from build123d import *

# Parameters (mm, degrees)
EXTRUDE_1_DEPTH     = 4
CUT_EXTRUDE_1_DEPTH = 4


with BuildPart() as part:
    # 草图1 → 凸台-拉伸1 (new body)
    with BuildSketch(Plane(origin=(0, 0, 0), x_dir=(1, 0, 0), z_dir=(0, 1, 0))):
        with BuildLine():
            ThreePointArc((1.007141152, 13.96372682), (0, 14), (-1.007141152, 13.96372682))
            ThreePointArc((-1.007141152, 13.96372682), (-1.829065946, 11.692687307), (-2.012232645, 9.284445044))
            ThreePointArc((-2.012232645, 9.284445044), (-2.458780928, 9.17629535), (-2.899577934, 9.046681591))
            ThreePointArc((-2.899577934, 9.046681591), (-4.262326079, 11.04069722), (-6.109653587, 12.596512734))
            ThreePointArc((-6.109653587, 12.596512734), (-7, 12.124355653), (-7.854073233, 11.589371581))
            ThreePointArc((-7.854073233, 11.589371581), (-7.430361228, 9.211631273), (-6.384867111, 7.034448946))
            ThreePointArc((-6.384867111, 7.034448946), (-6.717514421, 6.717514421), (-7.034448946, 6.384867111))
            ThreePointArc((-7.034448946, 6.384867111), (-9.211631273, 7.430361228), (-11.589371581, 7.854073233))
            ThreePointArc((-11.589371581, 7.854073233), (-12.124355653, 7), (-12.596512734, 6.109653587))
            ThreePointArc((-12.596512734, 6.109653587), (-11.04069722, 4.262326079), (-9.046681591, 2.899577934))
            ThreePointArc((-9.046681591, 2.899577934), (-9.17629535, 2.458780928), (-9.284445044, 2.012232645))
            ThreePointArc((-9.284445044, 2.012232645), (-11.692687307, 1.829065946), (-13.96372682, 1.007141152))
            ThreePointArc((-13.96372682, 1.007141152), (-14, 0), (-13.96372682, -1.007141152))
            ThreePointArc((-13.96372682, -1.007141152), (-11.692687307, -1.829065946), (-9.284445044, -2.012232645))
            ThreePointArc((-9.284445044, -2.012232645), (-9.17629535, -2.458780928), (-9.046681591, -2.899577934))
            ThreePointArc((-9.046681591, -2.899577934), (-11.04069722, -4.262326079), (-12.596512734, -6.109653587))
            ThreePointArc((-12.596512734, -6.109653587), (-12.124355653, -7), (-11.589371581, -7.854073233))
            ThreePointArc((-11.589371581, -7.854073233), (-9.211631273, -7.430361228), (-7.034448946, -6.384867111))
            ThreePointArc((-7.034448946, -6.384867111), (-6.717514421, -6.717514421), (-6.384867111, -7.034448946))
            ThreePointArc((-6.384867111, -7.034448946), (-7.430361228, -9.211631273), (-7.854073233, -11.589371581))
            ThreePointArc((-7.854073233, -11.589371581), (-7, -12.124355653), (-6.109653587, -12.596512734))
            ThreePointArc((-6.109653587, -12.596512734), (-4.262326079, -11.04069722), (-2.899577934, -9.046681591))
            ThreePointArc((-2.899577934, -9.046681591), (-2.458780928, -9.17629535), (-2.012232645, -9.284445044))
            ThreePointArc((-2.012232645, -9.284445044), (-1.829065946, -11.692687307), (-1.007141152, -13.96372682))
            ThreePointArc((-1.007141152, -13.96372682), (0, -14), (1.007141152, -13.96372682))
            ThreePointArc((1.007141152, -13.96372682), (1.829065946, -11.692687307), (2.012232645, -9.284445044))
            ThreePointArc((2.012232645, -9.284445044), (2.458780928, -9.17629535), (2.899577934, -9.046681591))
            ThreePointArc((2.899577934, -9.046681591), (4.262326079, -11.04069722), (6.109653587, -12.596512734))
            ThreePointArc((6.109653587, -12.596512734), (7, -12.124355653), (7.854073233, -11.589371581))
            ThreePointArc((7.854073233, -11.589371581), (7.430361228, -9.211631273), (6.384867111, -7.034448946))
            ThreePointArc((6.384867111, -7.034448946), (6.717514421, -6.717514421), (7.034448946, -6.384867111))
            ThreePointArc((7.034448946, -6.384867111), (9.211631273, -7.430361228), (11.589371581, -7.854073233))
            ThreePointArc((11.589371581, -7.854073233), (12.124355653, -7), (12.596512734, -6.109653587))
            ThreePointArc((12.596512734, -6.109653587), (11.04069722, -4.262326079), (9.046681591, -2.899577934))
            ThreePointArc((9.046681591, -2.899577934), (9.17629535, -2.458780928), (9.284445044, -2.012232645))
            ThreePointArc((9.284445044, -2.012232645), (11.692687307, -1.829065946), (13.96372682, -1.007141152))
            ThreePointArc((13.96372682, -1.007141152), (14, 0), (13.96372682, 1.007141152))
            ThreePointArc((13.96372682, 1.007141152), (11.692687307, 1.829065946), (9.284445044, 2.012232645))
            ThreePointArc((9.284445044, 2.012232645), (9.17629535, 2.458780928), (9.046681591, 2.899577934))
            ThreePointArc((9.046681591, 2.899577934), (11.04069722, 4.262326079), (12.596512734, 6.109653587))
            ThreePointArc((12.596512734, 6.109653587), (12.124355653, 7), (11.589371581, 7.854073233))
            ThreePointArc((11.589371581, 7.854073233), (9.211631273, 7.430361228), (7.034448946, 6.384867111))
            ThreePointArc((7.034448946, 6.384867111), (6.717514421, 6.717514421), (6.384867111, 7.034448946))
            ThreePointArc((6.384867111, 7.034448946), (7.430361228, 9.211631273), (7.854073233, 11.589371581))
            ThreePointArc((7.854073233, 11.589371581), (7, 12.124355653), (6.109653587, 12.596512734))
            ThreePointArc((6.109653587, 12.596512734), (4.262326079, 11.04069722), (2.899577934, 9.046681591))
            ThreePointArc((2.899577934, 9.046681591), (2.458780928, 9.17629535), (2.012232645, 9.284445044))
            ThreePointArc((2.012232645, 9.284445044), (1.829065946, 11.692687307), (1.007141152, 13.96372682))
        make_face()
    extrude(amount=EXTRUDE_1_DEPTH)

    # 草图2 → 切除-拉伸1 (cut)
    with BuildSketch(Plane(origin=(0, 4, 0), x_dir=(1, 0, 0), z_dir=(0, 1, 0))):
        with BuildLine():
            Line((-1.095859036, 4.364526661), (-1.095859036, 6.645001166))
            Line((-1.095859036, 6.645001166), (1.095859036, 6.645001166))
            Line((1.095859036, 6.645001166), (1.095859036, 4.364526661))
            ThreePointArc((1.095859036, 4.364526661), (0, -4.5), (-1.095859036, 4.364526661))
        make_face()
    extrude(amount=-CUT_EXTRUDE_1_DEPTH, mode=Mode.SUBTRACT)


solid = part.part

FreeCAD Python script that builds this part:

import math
import FreeCAD as App
import Part
import Sketcher

V = App.Vector

doc = App.newDocument("Part")
body = doc.addObject("PartDesign::Body", "Body")

sketch1 = doc.addObject("Sketcher::SketchObject", "Sketch")
body.addObject(sketch1)
sketch1.AttachmentSupport = (doc.XZ_Plane, [""])
sketch1.MapMode = "FlatFace"
sketch1.addGeometry([
    Part.ArcOfCircle(Part.Circle(V(0, 0, 0), V(0, 0, 1), 14), math.radians(-94.13), math.radians(-85.87)),
    Part.ArcOfCircle(Part.Circle(V(6.9, -9.8, 0), V(0, 0, 1), 8.9), math.radians(177), math.radians(208)),
    Part.ArcOfCircle(Part.Circle(V(0, 0, 0), V(0, 0, 1), 9.5), math.radians(-107.77), math.radians(-102.23)),
    Part.ArcOfCircle(Part.Circle(V(-10.9, -5.1, 0), V(0, 0, 1), 8.9), math.radians(-58), math.radians(-27)),
    Part.ArcOfCircle(Part.Circle(V(0, 0, 0), V(0, 0, 1), 14), math.radians(-124.13), math.radians(-115.87)),
    Part.ArcOfCircle(Part.Circle(V(1.1, -12, 0), V(0, 0, 1), 8.9), math.radians(147), math.radians(178)),
    Part.ArcOfCircle(Part.Circle(V(0, 0, 0), V(0, 0, 1), 9.5), math.radians(-137.77), math.radians(-132.23)),
    Part.ArcOfCircle(Part.Circle(V(-12, 1.1, 0), V(0, 0, 1), 8.9), math.radians(-88), math.radians(-57)),
    Part.ArcOfCircle(Part.Circle(V(0, 0, 0), V(0, 0, 1), 14), math.radians(-154.13), math.radians(-145.87)),
    Part.ArcOfCircle(Part.Circle(V(-5.1, -10.9, 0), V(0, 0, 1), 8.9), math.radians(117), math.radians(148)),
    Part.ArcOfCircle(Part.Circle(V(0, 0, 0), V(0, 0, 1), 9.5), math.radians(-167.77), math.radians(-162.23)),
    Part.ArcOfCircle(Part.Circle(V(-9.8, 6.9, 0), V(0, 0, 1), 8.9), math.radians(-118), math.radians(-87)),
    Part.ArcOfCircle(Part.Circle(V(0, 0, 0), V(0, 0, 1), 14), math.radians(175.87), math.radians(184.13)),
    Part.ArcOfCircle(Part.Circle(V(-9.8, -6.9, 0), V(0, 0, 1), 8.9), math.radians(87), math.radians(118)),
    Part.ArcOfCircle(Part.Circle(V(0, 0, 0), V(0, 0, 1), 9.5), math.radians(162.23), math.radians(167.77)),
    Part.ArcOfCircle(Part.Circle(V(-5.1, 10.9, 0), V(0, 0, 1), 8.9), math.radians(-148), math.radians(-117)),
    Part.ArcOfCircle(Part.Circle(V(0, 0, 0), V(0, 0, 1), 14), math.radians(145.87), math.radians(154.13)),
    Part.ArcOfCircle(Part.Circle(V(-12, -1.1, 0), V(0, 0, 1), 8.9), math.radians(57), math.radians(88)),
    Part.ArcOfCircle(Part.Circle(V(0, 0, 0), V(0, 0, 1), 9.5), math.radians(132.23), math.radians(137.77)),
    Part.ArcOfCircle(Part.Circle(V(1.1, 12, 0), V(0, 0, 1), 8.9), math.radians(-178), math.radians(-147)),
    Part.ArcOfCircle(Part.Circle(V(0, 0, 0), V(0, 0, 1), 14), math.radians(115.87), math.radians(124.13)),
    Part.ArcOfCircle(Part.Circle(V(-10.9, 5.1, 0), V(0, 0, 1), 8.9), math.radians(27), math.radians(58)),
    Part.ArcOfCircle(Part.Circle(V(0, 0, 0), V(0, 0, 1), 9.5), math.radians(102.23), math.radians(107.77)),
    Part.ArcOfCircle(Part.Circle(V(6.9, 9.8, 0), V(0, 0, 1), 8.9), math.radians(152), math.radians(183)),
    Part.ArcOfCircle(Part.Circle(V(0, 0, 0), V(0, 0, 1), 14), math.radians(85.87), math.radians(94.13)),
    Part.ArcOfCircle(Part.Circle(V(-6.9, 9.8, 0), V(0, 0, 1), 8.9), math.radians(-3), math.radians(28)),
    Part.ArcOfCircle(Part.Circle(V(0, 0, 0), V(0, 0, 1), 9.5), math.radians(72.23), math.radians(77.77)),
    Part.ArcOfCircle(Part.Circle(V(10.9, 5.1, 0), V(0, 0, 1), 8.9), math.radians(122), math.radians(153)),
    Part.ArcOfCircle(Part.Circle(V(0, 0, 0), V(0, 0, 1), 14), math.radians(55.87), math.radians(64.13)),
    Part.ArcOfCircle(Part.Circle(V(-1.1, 12, 0), V(0, 0, 1), 8.9), math.radians(-33), math.radians(-2)),
    Part.ArcOfCircle(Part.Circle(V(0, 0, 0), V(0, 0, 1), 9.5), math.radians(42.23), math.radians(47.77)),
    Part.ArcOfCircle(Part.Circle(V(12, -1.1, 0), V(0, 0, 1), 8.9), math.radians(92), math.radians(123)),
    Part.ArcOfCircle(Part.Circle(V(0, 0, 0), V(0, 0, 1), 14), math.radians(25.87), math.radians(34.13)),
    Part.ArcOfCircle(Part.Circle(V(5.1, 10.9, 0), V(0, 0, 1), 8.9), math.radians(-63), math.radians(-32)),
    Part.ArcOfCircle(Part.Circle(V(0, 0, 0), V(0, 0, 1), 9.5), math.radians(12.23), math.radians(17.77)),
    Part.ArcOfCircle(Part.Circle(V(9.8, -6.9, 0), V(0, 0, 1), 8.9), math.radians(62), math.radians(93)),
    Part.ArcOfCircle(Part.Circle(V(0, 0, 0), V(0, 0, 1), 14), math.radians(-4.13), math.radians(4.13)),
    Part.ArcOfCircle(Part.Circle(V(9.8, 6.9, 0), V(0, 0, 1), 8.9), math.radians(-93), math.radians(-62)),
    Part.ArcOfCircle(Part.Circle(V(0, 0, 0), V(0, 0, 1), 9.5), math.radians(-17.77), math.radians(-12.23)),
    Part.ArcOfCircle(Part.Circle(V(5.1, -10.9, 0), V(0, 0, 1), 8.9), math.radians(32), math.radians(63)),
    Part.ArcOfCircle(Part.Circle(V(0, 0, 0), V(0, 0, 1), 14), math.radians(-34.13), math.radians(-25.87)),
    Part.ArcOfCircle(Part.Circle(V(12, 1.1, 0), V(0, 0, 1), 8.9), math.radians(-123), math.radians(-92)),
    Part.ArcOfCircle(Part.Circle(V(0, 0, 0), V(0, 0, 1), 9.5), math.radians(-47.77), math.radians(-42.23)),
    Part.ArcOfCircle(Part.Circle(V(-1.1, -12, 0), V(0, 0, 1), 8.9), math.radians(2), math.radians(33)),
    Part.ArcOfCircle(Part.Circle(V(0, 0, 0), V(0, 0, 1), 14), math.radians(-64.13), math.radians(-55.87)),
    Part.ArcOfCircle(Part.Circle(V(10.9, -5.1, 0), V(0, 0, 1), 8.9), math.radians(-153), math.radians(-122)),
    Part.ArcOfCircle(Part.Circle(V(0, 0, 0), V(0, 0, 1), 9.5), math.radians(-77.77), math.radians(-72.23)),
    Part.ArcOfCircle(Part.Circle(V(-6.9, -9.8, 0), V(0, 0, 1), 8.9), math.radians(-28), math.radians(3)),
], False)
sketch1.addConstraint([
    Sketcher.Constraint("Coincident", 0, 1, 1, 2),
    Sketcher.Constraint("Coincident", 1, 1, 2, 2),
    Sketcher.Constraint("Coincident", 2, 1, 3, 2),
    Sketcher.Constraint("Coincident", 3, 1, 4, 2),
    Sketcher.Constraint("Coincident", 4, 1, 5, 2),
    Sketcher.Constraint("Coincident", 5, 1, 6, 2),
    Sketcher.Constraint("Coincident", 6, 1, 7, 2),
    Sketcher.Constraint("Coincident", 7, 1, 8, 2),
    Sketcher.Constraint("Coincident", 8, 1, 9, 2),
    Sketcher.Constraint("Coincident", 9, 1, 10, 2),
    Sketcher.Constraint("Coincident", 10, 1, 11, 2),
    Sketcher.Constraint("Coincident", 11, 1, 12, 2),
    Sketcher.Constraint("Coincident", 12, 1, 13, 2),
    Sketcher.Constraint("Coincident", 13, 1, 14, 2),
    Sketcher.Constraint("Coincident", 14, 1, 15, 2),
    Sketcher.Constraint("Coincident", 15, 1, 16, 2),
    Sketcher.Constraint("Coincident", 16, 1, 17, 2),
    Sketcher.Constraint("Coincident", 17, 1, 18, 2),
    Sketcher.Constraint("Coincident", 18, 1, 19, 2),
    Sketcher.Constraint("Coincident", 19, 1, 20, 2),
    Sketcher.Constraint("Coincident", 20, 1, 21, 2),
    Sketcher.Constraint("Coincident", 21, 1, 22, 2),
    Sketcher.Constraint("Coincident", 22, 1, 23, 2),
    Sketcher.Constraint("Coincident", 23, 1, 24, 2),
    Sketcher.Constraint("Coincident", 24, 1, 25, 2),
    Sketcher.Constraint("Coincident", 25, 1, 26, 2),
    Sketcher.Constraint("Coincident", 26, 1, 27, 2),
    Sketcher.Constraint("Coincident", 27, 1, 28, 2),
    Sketcher.Constraint("Coincident", 28, 1, 29, 2),
    Sketcher.Constraint("Coincident", 29, 1, 30, 2),
    Sketcher.Constraint("Coincident", 30, 1, 31, 2),
    Sketcher.Constraint("Coincident", 31, 1, 32, 2),
    Sketcher.Constraint("Coincident", 32, 1, 33, 2),
    Sketcher.Constraint("Coincident", 33, 1, 34, 2),
    Sketcher.Constraint("Coincident", 34, 1, 35, 2),
    Sketcher.Constraint("Coincident", 35, 1, 36, 2),
    Sketcher.Constraint("Coincident", 36, 1, 37, 2),
    Sketcher.Constraint("Coincident", 37, 1, 38, 2),
    Sketcher.Constraint("Coincident", 38, 1, 39, 2),
    Sketcher.Constraint("Coincident", 39, 1, 40, 2),
    Sketcher.Constraint("Coincident", 40, 1, 41, 2),
    Sketcher.Constraint("Coincident", 41, 1, 42, 2),
    Sketcher.Constraint("Coincident", 42, 1, 43, 2),
    Sketcher.Constraint("Coincident", 43, 1, 44, 2),
    Sketcher.Constraint("Coincident", 44, 1, 45, 2),
    Sketcher.Constraint("Coincident", 45, 1, 46, 2),
    Sketcher.Constraint("Coincident", 46, 1, 47, 2),
    Sketcher.Constraint("Coincident", 47, 1, 0, 2),
    Sketcher.Constraint("Coincident", 0, 3, -1, 1),
    Sketcher.Constraint("Coincident", 2, 3, -1, 1),
    Sketcher.Constraint("Coincident", 4, 3, -1, 1),
    Sketcher.Constraint("Coincident", 6, 3, -1, 1),
    Sketcher.Constraint("Coincident", 8, 3, -1, 1),
    Sketcher.Constraint("Coincident", 10, 3, -1, 1),
    Sketcher.Constraint("Coincident", 12, 3, -1, 1),
    Sketcher.Constraint("Coincident", 14, 3, -1, 1),
    Sketcher.Constraint("Coincident", 16, 3, -1, 1),
    Sketcher.Constraint("Coincident", 18, 3, -1, 1),
    Sketcher.Constraint("Coincident", 20, 3, -1, 1),
    Sketcher.Constraint("Coincident", 22, 3, -1, 1),
    Sketcher.Constraint("Coincident", 24, 3, -1, 1),
    Sketcher.Constraint("Coincident", 26, 3, -1, 1),
    Sketcher.Constraint("Coincident", 28, 3, -1, 1),
    Sketcher.Constraint("Coincident", 30, 3, -1, 1),
    Sketcher.Constraint("Coincident", 32, 3, -1, 1),
    Sketcher.Constraint("Coincident", 34, 3, -1, 1),
    Sketcher.Constraint("Coincident", 36, 3, -1, 1),
    Sketcher.Constraint("Coincident", 38, 3, -1, 1),
    Sketcher.Constraint("Coincident", 40, 3, -1, 1),
    Sketcher.Constraint("Coincident", 42, 3, -1, 1),
    Sketcher.Constraint("Coincident", 44, 3, -1, 1),
    Sketcher.Constraint("Coincident", 46, 3, -1, 1),
    Sketcher.Constraint("Equal", 1, 3),
    Sketcher.Constraint("Equal", 0, 4),
    Sketcher.Constraint("Equal", 3, 5),
    Sketcher.Constraint("Equal", 2, 6),
    Sketcher.Constraint("Equal", 5, 7),
    Sketcher.Constraint("Equal", 4, 8),
    Sketcher.Constraint("Equal", 7, 9),
    Sketcher.Constraint("Equal", 6, 10),
    Sketcher.Constraint("Equal", 9, 11),
    Sketcher.Constraint("Equal", 8, 12),
    Sketcher.Constraint("Equal", 11, 13),
    Sketcher.Constraint("Equal", 10, 14),
    Sketcher.Constraint("Equal", 13, 15),
    Sketcher.Constraint("Equal", 12, 16),
    Sketcher.Constraint("Equal", 15, 17),
    Sketcher.Constraint("Equal", 14, 18),
    Sketcher.Constraint("Equal", 17, 19),
    Sketcher.Constraint("Equal", 16, 20),
    Sketcher.Constraint("Equal", 19, 21),
    Sketcher.Constraint("Equal", 18, 22),
    Sketcher.Constraint("Equal", 21, 23),
    Sketcher.Constraint("Equal", 20, 24),
    Sketcher.Constraint("Equal", 23, 25),
    Sketcher.Constraint("Equal", 22, 26),
    Sketcher.Constraint("Equal", 25, 27),
    Sketcher.Constraint("Equal", 24, 28),
    Sketcher.Constraint("Equal", 27, 29),
    Sketcher.Constraint("Equal", 26, 30),
    Sketcher.Constraint("Equal", 29, 31),
    Sketcher.Constraint("Equal", 28, 32),
    Sketcher.Constraint("Equal", 31, 33),
    Sketcher.Constraint("Equal", 30, 34),
    Sketcher.Constraint("Equal", 33, 35),
    Sketcher.Constraint("Equal", 32, 36),
    Sketcher.Constraint("Equal", 35, 37),
    Sketcher.Constraint("Equal", 34, 38),
    Sketcher.Constraint("Equal", 37, 39),
    Sketcher.Constraint("Equal", 36, 40),
    Sketcher.Constraint("Equal", 39, 41),
    Sketcher.Constraint("Equal", 38, 42),
    Sketcher.Constraint("Equal", 41, 43),
    Sketcher.Constraint("Equal", 40, 44),
    Sketcher.Constraint("Equal", 43, 45),
    Sketcher.Constraint("Equal", 42, 46),
    Sketcher.Constraint("Equal", 45, 47),
    Sketcher.Constraint("Symmetric", 1, 3, 25, 3, -1, 1),
    Sketcher.Constraint("Symmetric", 3, 3, 27, 3, -1, 1),
    Sketcher.Constraint("Symmetric", 5, 3, 29, 3, -1, 1),
    Sketcher.Constraint("Symmetric", 7, 3, 31, 3, -1, 1),
    Sketcher.Constraint("Symmetric", 9, 3, 33, 3, -1, 1),
    Sketcher.Constraint("Symmetric", 11, 3, 35, 3, -1, 1),
    Sketcher.Constraint("Symmetric", 13, 3, 37, 3, -1, 1),
    Sketcher.Constraint("Symmetric", 15, 3, 39, 3, -1, 1),
    Sketcher.Constraint("Symmetric", 17, 3, 41, 3, -1, 1),
    Sketcher.Constraint("Symmetric", 19, 3, 43, 3, -1, 1),
    Sketcher.Constraint("Symmetric", 21, 3, 45, 3, -1, 1),
    Sketcher.Constraint("Symmetric", 23, 3, 47, 3, -1, 1),
    Sketcher.Constraint("Symmetric", 23, 3, 25, 3, -2),
    Sketcher.Constraint("Symmetric", 21, 3, 27, 3, -2),
    Sketcher.Constraint("Symmetric", 19, 3, 29, 3, -2),
    Sketcher.Constraint("Symmetric", 17, 3, 31, 3, -2),
    Sketcher.Constraint("Symmetric", 15, 3, 33, 3, -2),
    Sketcher.Constraint("Symmetric", 13, 3, 35, 3, -2),
    Sketcher.Constraint("Radius", 0, 14.0),
    Sketcher.Constraint("Radius", 2, 9.5),
    Sketcher.Constraint("Radius", 1, 8.928421),
    Sketcher.Constraint("DistanceX", -1, 1, 1, 3, 6.900252),
    Sketcher.Constraint("DistanceY", 3, 3, -1, 1, 5.05222),
    Sketcher.Constraint("DistanceX", -1, 1, 5, 3, 1.066962),
    Sketcher.Constraint("DistanceY", -1, 1, 7, 3, 1.066962),
    Sketcher.Constraint("DistanceX", 9, 3, -1, 1, 5.05222),
    Sketcher.Constraint("DistanceY", -1, 1, 11, 3, 6.900252),
    Sketcher.Constraint("DistanceX", 0, 1, -1, 1, 1.007141),
    Sketcher.Constraint("DistanceY", 2, 1, -1, 1, 9.046682),
    Sketcher.Constraint("DistanceY", 5, 1, -1, 1, 7.034449),
    Sketcher.Constraint("DistanceX", 6, 1, -1, 1, 7.034449),
    Sketcher.Constraint("DistanceX", 9, 1, -1, 1, 9.046682),
    Sketcher.Constraint("DistanceY", 11, 1, -1, 1, 1.007141),
])
pad1 = doc.addObject("PartDesign::Pad", "Pad")
body.addObject(pad1)
pad1.Profile = sketch1
pad1.Length = 4
pad1.Reversed = True

sketch2 = doc.addObject("Sketcher::SketchObject", "Sketch001")
body.addObject(sketch2)
sketch2.AttachmentSupport = (doc.XZ_Plane, [""])
sketch2.MapMode = "FlatFace"
sketch2.AttachmentOffset = App.Placement(V(0, 0, -4), App.Rotation())
sketch2.addGeometry([
    Part.LineSegment(V(-1.1, -6.6, 0), V(-1.1, -4.4, 0)),
    Part.ArcOfCircle(Part.Circle(V(0, 0, 0), V(0, 0, 1), 4.5), math.radians(-76), math.radians(256)),
    Part.LineSegment(V(1.1, -4.4, 0), V(1.1, -6.6, 0)),
    Part.LineSegment(V(1.1, -6.6, 0), V(-1.1, -6.6, 0)),
], False)
sketch2.addConstraint([
    Sketcher.Constraint("Coincident", 0, 2, 1, 2),
    Sketcher.Constraint("Coincident", 1, 1, 2, 1),
    Sketcher.Constraint("Coincident", 2, 2, 3, 1),
    Sketcher.Constraint("Coincident", 3, 2, 0, 1),
    Sketcher.Constraint("Vertical", 0),
    Sketcher.Constraint("Vertical", 2),
    Sketcher.Constraint("Horizontal", 3),
    Sketcher.Constraint("Coincident", 1, 3, -1, 1),
    Sketcher.Constraint("Horizontal", 0, 2, 1, 1),
    Sketcher.Constraint("Radius", 1, 4.5),
    Sketcher.Constraint("DistanceY", 2, 2, -1, 1, 6.645001),
    Sketcher.Constraint("DistanceX", 3, 2, 3, 1, 2.191718),
])
pocket1 = doc.addObject("PartDesign::Pocket", "Pocket")
body.addObject(pocket1)
pocket1.Profile = sketch2
pocket1.Length = 4
pocket1.Reversed = True

doc.recompute()
